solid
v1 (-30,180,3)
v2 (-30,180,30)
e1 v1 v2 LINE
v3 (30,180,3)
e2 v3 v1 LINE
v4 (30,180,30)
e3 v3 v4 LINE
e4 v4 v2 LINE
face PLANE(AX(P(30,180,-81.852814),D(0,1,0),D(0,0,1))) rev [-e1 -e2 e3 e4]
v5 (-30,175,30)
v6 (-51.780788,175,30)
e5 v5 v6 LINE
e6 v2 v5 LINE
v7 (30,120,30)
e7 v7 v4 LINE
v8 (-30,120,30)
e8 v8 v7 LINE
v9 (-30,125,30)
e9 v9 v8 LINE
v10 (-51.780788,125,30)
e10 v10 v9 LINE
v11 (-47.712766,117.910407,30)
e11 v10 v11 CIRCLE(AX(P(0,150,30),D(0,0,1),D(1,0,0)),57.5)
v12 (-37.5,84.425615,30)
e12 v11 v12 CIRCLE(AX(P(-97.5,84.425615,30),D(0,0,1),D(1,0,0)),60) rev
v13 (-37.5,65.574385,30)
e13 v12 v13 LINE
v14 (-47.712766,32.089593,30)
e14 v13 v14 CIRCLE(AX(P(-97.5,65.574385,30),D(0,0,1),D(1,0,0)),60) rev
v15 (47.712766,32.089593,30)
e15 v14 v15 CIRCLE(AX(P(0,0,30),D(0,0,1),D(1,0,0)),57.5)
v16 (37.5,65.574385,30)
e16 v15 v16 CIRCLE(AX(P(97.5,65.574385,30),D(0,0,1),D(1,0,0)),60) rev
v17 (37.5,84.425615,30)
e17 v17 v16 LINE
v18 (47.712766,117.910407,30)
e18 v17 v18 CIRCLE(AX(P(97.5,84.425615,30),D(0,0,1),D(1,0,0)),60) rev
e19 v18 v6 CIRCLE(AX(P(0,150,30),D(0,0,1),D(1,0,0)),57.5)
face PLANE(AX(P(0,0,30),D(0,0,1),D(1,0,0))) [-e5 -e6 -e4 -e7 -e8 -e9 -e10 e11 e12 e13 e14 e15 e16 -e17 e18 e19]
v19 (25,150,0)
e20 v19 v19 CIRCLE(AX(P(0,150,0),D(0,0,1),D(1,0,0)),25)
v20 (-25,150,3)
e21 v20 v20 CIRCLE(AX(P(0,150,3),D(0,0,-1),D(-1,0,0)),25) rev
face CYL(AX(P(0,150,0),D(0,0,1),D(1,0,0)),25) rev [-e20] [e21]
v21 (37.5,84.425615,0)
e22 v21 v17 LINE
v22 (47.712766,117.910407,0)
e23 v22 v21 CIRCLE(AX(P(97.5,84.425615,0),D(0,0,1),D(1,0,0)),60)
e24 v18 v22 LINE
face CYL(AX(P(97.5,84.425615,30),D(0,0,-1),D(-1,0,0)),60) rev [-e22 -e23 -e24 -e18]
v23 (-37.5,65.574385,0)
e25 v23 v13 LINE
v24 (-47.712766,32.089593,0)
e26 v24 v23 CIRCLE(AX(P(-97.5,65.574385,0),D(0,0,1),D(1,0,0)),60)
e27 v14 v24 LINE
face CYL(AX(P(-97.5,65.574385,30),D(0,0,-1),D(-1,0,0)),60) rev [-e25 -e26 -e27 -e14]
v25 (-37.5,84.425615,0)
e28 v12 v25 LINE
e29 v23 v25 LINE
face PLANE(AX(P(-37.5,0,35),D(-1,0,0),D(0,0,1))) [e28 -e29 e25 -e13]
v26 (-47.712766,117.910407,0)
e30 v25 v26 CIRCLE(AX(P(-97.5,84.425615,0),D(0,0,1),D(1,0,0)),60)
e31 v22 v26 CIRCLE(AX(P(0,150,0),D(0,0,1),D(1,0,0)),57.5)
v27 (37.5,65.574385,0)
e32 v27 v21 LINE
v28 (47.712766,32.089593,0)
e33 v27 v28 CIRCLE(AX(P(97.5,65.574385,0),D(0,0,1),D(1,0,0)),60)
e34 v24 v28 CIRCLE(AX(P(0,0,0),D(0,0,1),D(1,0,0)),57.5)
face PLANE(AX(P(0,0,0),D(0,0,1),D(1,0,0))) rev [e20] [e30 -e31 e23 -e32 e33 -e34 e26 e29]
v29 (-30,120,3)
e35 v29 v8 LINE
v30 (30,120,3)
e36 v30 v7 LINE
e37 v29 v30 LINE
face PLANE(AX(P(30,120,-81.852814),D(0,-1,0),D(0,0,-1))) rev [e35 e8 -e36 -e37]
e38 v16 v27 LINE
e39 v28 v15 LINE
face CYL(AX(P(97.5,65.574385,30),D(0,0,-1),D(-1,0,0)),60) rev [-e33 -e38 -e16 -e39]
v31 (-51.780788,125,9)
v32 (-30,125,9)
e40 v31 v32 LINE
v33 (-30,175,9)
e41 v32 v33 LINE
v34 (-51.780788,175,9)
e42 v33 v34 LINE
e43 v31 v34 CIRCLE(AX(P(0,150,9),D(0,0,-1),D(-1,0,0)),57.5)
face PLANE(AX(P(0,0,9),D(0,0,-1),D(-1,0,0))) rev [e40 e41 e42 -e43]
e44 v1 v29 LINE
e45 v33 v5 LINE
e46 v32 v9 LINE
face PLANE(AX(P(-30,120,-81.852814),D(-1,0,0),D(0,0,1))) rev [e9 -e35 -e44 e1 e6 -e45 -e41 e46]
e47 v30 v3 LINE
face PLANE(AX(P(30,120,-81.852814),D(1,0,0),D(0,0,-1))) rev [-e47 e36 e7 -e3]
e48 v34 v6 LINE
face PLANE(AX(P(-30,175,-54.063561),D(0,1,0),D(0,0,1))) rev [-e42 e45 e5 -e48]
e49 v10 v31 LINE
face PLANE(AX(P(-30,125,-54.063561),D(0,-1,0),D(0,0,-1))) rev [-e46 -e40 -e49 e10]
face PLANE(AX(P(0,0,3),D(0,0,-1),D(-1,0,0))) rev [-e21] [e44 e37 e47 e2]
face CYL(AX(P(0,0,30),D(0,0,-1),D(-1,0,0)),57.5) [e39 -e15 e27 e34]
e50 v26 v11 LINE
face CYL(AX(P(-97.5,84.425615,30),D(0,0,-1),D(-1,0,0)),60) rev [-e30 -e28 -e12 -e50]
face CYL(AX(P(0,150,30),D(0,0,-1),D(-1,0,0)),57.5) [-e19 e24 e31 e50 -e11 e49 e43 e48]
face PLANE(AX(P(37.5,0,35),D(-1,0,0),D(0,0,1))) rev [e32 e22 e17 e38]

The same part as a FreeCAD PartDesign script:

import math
import FreeCAD as App
import Part
import Sketcher


def edges_at(feature, points):
    """Names of the edges that pass closest to the given points."""
    edges = feature.Shape.Edges
    near = lambda p: min(range(len(edges)), key=lambda i: edges[i].distToShape(Part.Vertex(*p))[0])
    return sorted({f"Edge{near(p) + 1}" for p in points})


def add_polygon(sketch, points):
    """Adds a closed chain of lines whose ends are joined by coincident constraints."""
    first, n = sketch.GeometryCount, len(points)
    for a, b in zip(points, points[1:] + points[:1]):
        sketch.addGeometry(Part.LineSegment(App.Vector(*a, 0), App.Vector(*b, 0)), False)
    for i in range(n):
        sketch.addConstraint(Sketcher.Constraint("Coincident", first + i, 2, first + (i + 1) % n, 1))

doc = App.newDocument("Part")
body = doc.addObject("PartDesign::Body", "Body")

# Sketch on XY plane
sketch1 = body.newObject("Sketcher::SketchObject", "Sketch")
sketch1.AttachmentSupport = (doc.getObject("XY_Plane"), [""])
sketch1.MapMode = "FlatFace"
sketch1.addGeometry([
    Part.LineSegment(App.Vector(-57.5, 150, 0), App.Vector(-57.5, 0, 0)),
    Part.ArcOfCircle(Part.Circle(App.Vector(0, 0, 0), App.Vector(0, 0, 1), 57.5), math.radians(180), math.radians(360)),
    Part.LineSegment(App.Vector(57.5, 0, 0), App.Vector(57.5, 150, 0)),
    Part.ArcOfCircle(Part.Circle(App.Vector(0, 150, 0), App.Vector(0, 0, 1), 57.5), math.radians(0), math.radians(180)),
], False)
sketch1.addConstraint([
    Sketcher.Constraint("Tangent", 0, 2, 1, 1),
    Sketcher.Constraint("Tangent", 1, 2, 2, 1),
    Sketcher.Constraint("Tangent", 2, 2, 3, 1),
    Sketcher.Constraint("Tangent", 3, 2, 0, 1),
    Sketcher.Constraint("Vertical", 0),
    Sketcher.Constraint("Vertical", 2),
    Sketcher.Constraint("Coincident", 1, 3, -1, 1),
    Sketcher.Constraint("Radius", 1, 57.5),
    Sketcher.Constraint("DistanceY", 0, 2, 0, 1, 150.0),
])
pad1 = body.newObject("PartDesign::Pad", "Pad")
pad1.Profile = sketch1
pad1.Length = 30

# Sketch on XY plane
sketch2 = body.newObject("Sketcher::SketchObject", "Sketch001")
sketch2.AttachmentSupport = (doc.getObject("XY_Plane"), [""])
sketch2.MapMode = "FlatFace"
sketch2.addGeometry([
    Part.ArcOfCircle(Part.Circle(App.Vector(0, 150, 0), App.Vector(0, 0, 1), 57.5), math.radians(-49.294293), math.radians(0)),  # 0
    Part.LineSegment(App.Vector(57.5, 150, 0), App.Vector(57.5, 0, 0)),  # 1
    Part.ArcOfCircle(Part.Circle(App.Vector(0, 0, 0), App.Vector(0, 0, 1), 57.5), math.radians(0), math.radians(49.294293)),  # 2
    Part.LineSegment(App.Vector(37.5, 43.588989, 0), App.Vector(37.5, 106.411011, 0)),  # 3
    Part.ArcOfCircle(Part.Circle(App.Vector(0, 0, 0), App.Vector(0, 0, 1), 57.5), math.radians(130.705707), math.radians(180)),  # 4
    Part.LineSegment(App.Vector(-57.5, 0, 0), App.Vector(-57.5, 150, 0)),  # 5
    Part.ArcOfCircle(Part.Circle(App.Vector(0, 150, 0), App.Vector(0, 0, 1), 57.5), math.radians(180), math.radians(229.294293)),  # 6
    Part.LineSegment(App.Vector(-37.5, 106.411011, 0), App.Vector(-37.5, 43.588989, 0)),  # 7
], False)
sketch2.addConstraint([
    Sketcher.Constraint("Tangent", 0, 2, 1, 1),
    Sketcher.Constraint("Tangent", 1, 2, 2, 1),
    Sketcher.Constraint("Coincident", 2, 2, 3, 1),
    Sketcher.Constraint("Coincident", 3, 2, 0, 1),
    Sketcher.Constraint("Tangent", 4, 2, 5, 1),
    Sketcher.Constraint("Tangent", 5, 2, 6, 1),
    Sketcher.Constraint("Coincident", 6, 2, 7, 1),
    Sketcher.Constraint("Coincident", 7, 2, 4, 1),
    Sketcher.Constraint("Vertical", 1),
    Sketcher.Constraint("Vertical", 3),
    Sketcher.Constraint("Vertical", 5),
    Sketcher.Constraint("Vertical", 7),
    Sketcher.Constraint("Coincident", 2, 3, -1, 1),
    Sketcher.Constraint("Coincident", 4, 3, -1, 1),
    Sketcher.Constraint("Coincident", 6, 3, 0, 3),
    Sketcher.Constraint("Equal", 0, 2),
    Sketcher.Constraint("Equal", 2, 4),
    Sketcher.Constraint("Horizontal", 3, 2, 6, 2),
    Sketcher.Constraint("Radius", 0, 57.5),
    Sketcher.Constraint("DistanceY", 1, 2, 1, 1, 150.0),
    Sketcher.Constraint("DistanceX", 2, 2, 1, 2, 20.0),
])
pocket1 = body.newObject("PartDesign::Pocket", "Pocket")
pocket1.Profile = sketch2
pocket1.Length = 35
pocket1.Reversed = True
doc.recompute()

fillet = body.newObject("PartDesign::Fillet", "Fillet")
fillet.Base = (pocket1, edges_at(pocket1, [
    (37.5, 106.411, 15),
    (37.5, 43.589, 15),
    (-37.5, 43.589, 15),
    (-37.5, 106.411, 15),
]))
fillet.Radius = 60

# Sketch on XY plane
sketch3 = body.newObject("Sketcher::SketchObject", "Sketch002")
sketch3.AttachmentSupport = (doc.getObject("XY_Plane"), [""])
sketch3.MapMode = "FlatFace"
sketch3.AttachmentOffset = App.Placement(App.Vector(0, 0, 30), App.Rotation())
sketch3.addGeometry(Part.Circle(App.Vector(0, 150, 0), App.Vector(0, 0, 1), 25), False)
sketch3.addConstraint([
    Sketcher.Constraint("PointOnObject", 0, 3, -2),
    Sketcher.Constraint("Diameter", 0, 50.0),
    Sketcher.Constraint("DistanceY", -1, 1, 0, 3, 150.0),
])
pocket2 = body.newObject("PartDesign::Pocket", "Pocket001")
pocket2.Profile = sketch3
pocket2.Type = "ThroughAll"

# Sketch on XY plane
sketch4 = body.newObject("Sketcher::SketchObject", "Sketch003")
sketch4.AttachmentSupport = (doc.getObject("XY_Plane"), [""])
sketch4.MapMode = "FlatFace"
sketch4.AttachmentOffset = App.Placement(App.Vector(0, 0, 3), App.Rotation())
add_polygon(sketch4, [(-30, 180), (-30, 120), (30, 120), (30, 180)])  # lines 0-3
sketch4.addConstraint([
    Sketcher.Constraint("Vertical", 0),
    Sketcher.Constraint("Horizontal", 1),
    Sketcher.Constraint("Vertical", 2),
    Sketcher.Constraint("Horizontal", 3),
    Sketcher.Constraint("Equal", 3, 0),
    Sketcher.Constraint("DistanceX", 1, 1, 1, 2, 60.0),
    Sketcher.Constraint("DistanceX", 0, 2, -1, 1, 30.0),
    Sketcher.Constraint("DistanceY", -1, 1, 0, 2, 120.0),
])
pocket3 = body.newObject("PartDesign::Pocket", "Pocket002")
pocket3.Profile = sketch4
pocket3.Length = 27
pocket3.Reversed = True

# Sketch on XY plane
sketch5 = body.newObject("Sketcher::SketchObject", "Sketch004")
sketch5.AttachmentSupport = (doc.getObject("XY_Plane"), [""])
sketch5.MapMode = "FlatFace"
sketch5.AttachmentOffset = App.Placement(App.Vector(0, 0, 30), App.Rotation())
add_polygon(sketch5, [(-57.5, 175), (-57.5, 125), (-30, 125), (-30, 175)])  # lines 0-3
sketch5.addConstraint([
    Sketcher.Constraint("Vertical", 0),
    Sketcher.Constraint("Horizontal", 1),
    Sketcher.Constraint("Vertical", 2),
    Sketcher.Constraint("Horizontal", 3),
    Sketcher.Constraint("DistanceY", 0, 2, 0, 1, 50.0),
    Sketcher.Constraint("DistanceX", 1, 1, 1, 2, 27.5),
    Sketcher.Constraint("DistanceY", -1, 1, 0, 2, 125.0),
    Sketcher.Constraint("DistanceX", 1, 2, -1, 1, 30.0),
])
pocket4 = body.newObject("PartDesign::Pocket", "Pocket003")
pocket4.Profile = sketch5
pocket4.Length = 21

doc.recompute()
